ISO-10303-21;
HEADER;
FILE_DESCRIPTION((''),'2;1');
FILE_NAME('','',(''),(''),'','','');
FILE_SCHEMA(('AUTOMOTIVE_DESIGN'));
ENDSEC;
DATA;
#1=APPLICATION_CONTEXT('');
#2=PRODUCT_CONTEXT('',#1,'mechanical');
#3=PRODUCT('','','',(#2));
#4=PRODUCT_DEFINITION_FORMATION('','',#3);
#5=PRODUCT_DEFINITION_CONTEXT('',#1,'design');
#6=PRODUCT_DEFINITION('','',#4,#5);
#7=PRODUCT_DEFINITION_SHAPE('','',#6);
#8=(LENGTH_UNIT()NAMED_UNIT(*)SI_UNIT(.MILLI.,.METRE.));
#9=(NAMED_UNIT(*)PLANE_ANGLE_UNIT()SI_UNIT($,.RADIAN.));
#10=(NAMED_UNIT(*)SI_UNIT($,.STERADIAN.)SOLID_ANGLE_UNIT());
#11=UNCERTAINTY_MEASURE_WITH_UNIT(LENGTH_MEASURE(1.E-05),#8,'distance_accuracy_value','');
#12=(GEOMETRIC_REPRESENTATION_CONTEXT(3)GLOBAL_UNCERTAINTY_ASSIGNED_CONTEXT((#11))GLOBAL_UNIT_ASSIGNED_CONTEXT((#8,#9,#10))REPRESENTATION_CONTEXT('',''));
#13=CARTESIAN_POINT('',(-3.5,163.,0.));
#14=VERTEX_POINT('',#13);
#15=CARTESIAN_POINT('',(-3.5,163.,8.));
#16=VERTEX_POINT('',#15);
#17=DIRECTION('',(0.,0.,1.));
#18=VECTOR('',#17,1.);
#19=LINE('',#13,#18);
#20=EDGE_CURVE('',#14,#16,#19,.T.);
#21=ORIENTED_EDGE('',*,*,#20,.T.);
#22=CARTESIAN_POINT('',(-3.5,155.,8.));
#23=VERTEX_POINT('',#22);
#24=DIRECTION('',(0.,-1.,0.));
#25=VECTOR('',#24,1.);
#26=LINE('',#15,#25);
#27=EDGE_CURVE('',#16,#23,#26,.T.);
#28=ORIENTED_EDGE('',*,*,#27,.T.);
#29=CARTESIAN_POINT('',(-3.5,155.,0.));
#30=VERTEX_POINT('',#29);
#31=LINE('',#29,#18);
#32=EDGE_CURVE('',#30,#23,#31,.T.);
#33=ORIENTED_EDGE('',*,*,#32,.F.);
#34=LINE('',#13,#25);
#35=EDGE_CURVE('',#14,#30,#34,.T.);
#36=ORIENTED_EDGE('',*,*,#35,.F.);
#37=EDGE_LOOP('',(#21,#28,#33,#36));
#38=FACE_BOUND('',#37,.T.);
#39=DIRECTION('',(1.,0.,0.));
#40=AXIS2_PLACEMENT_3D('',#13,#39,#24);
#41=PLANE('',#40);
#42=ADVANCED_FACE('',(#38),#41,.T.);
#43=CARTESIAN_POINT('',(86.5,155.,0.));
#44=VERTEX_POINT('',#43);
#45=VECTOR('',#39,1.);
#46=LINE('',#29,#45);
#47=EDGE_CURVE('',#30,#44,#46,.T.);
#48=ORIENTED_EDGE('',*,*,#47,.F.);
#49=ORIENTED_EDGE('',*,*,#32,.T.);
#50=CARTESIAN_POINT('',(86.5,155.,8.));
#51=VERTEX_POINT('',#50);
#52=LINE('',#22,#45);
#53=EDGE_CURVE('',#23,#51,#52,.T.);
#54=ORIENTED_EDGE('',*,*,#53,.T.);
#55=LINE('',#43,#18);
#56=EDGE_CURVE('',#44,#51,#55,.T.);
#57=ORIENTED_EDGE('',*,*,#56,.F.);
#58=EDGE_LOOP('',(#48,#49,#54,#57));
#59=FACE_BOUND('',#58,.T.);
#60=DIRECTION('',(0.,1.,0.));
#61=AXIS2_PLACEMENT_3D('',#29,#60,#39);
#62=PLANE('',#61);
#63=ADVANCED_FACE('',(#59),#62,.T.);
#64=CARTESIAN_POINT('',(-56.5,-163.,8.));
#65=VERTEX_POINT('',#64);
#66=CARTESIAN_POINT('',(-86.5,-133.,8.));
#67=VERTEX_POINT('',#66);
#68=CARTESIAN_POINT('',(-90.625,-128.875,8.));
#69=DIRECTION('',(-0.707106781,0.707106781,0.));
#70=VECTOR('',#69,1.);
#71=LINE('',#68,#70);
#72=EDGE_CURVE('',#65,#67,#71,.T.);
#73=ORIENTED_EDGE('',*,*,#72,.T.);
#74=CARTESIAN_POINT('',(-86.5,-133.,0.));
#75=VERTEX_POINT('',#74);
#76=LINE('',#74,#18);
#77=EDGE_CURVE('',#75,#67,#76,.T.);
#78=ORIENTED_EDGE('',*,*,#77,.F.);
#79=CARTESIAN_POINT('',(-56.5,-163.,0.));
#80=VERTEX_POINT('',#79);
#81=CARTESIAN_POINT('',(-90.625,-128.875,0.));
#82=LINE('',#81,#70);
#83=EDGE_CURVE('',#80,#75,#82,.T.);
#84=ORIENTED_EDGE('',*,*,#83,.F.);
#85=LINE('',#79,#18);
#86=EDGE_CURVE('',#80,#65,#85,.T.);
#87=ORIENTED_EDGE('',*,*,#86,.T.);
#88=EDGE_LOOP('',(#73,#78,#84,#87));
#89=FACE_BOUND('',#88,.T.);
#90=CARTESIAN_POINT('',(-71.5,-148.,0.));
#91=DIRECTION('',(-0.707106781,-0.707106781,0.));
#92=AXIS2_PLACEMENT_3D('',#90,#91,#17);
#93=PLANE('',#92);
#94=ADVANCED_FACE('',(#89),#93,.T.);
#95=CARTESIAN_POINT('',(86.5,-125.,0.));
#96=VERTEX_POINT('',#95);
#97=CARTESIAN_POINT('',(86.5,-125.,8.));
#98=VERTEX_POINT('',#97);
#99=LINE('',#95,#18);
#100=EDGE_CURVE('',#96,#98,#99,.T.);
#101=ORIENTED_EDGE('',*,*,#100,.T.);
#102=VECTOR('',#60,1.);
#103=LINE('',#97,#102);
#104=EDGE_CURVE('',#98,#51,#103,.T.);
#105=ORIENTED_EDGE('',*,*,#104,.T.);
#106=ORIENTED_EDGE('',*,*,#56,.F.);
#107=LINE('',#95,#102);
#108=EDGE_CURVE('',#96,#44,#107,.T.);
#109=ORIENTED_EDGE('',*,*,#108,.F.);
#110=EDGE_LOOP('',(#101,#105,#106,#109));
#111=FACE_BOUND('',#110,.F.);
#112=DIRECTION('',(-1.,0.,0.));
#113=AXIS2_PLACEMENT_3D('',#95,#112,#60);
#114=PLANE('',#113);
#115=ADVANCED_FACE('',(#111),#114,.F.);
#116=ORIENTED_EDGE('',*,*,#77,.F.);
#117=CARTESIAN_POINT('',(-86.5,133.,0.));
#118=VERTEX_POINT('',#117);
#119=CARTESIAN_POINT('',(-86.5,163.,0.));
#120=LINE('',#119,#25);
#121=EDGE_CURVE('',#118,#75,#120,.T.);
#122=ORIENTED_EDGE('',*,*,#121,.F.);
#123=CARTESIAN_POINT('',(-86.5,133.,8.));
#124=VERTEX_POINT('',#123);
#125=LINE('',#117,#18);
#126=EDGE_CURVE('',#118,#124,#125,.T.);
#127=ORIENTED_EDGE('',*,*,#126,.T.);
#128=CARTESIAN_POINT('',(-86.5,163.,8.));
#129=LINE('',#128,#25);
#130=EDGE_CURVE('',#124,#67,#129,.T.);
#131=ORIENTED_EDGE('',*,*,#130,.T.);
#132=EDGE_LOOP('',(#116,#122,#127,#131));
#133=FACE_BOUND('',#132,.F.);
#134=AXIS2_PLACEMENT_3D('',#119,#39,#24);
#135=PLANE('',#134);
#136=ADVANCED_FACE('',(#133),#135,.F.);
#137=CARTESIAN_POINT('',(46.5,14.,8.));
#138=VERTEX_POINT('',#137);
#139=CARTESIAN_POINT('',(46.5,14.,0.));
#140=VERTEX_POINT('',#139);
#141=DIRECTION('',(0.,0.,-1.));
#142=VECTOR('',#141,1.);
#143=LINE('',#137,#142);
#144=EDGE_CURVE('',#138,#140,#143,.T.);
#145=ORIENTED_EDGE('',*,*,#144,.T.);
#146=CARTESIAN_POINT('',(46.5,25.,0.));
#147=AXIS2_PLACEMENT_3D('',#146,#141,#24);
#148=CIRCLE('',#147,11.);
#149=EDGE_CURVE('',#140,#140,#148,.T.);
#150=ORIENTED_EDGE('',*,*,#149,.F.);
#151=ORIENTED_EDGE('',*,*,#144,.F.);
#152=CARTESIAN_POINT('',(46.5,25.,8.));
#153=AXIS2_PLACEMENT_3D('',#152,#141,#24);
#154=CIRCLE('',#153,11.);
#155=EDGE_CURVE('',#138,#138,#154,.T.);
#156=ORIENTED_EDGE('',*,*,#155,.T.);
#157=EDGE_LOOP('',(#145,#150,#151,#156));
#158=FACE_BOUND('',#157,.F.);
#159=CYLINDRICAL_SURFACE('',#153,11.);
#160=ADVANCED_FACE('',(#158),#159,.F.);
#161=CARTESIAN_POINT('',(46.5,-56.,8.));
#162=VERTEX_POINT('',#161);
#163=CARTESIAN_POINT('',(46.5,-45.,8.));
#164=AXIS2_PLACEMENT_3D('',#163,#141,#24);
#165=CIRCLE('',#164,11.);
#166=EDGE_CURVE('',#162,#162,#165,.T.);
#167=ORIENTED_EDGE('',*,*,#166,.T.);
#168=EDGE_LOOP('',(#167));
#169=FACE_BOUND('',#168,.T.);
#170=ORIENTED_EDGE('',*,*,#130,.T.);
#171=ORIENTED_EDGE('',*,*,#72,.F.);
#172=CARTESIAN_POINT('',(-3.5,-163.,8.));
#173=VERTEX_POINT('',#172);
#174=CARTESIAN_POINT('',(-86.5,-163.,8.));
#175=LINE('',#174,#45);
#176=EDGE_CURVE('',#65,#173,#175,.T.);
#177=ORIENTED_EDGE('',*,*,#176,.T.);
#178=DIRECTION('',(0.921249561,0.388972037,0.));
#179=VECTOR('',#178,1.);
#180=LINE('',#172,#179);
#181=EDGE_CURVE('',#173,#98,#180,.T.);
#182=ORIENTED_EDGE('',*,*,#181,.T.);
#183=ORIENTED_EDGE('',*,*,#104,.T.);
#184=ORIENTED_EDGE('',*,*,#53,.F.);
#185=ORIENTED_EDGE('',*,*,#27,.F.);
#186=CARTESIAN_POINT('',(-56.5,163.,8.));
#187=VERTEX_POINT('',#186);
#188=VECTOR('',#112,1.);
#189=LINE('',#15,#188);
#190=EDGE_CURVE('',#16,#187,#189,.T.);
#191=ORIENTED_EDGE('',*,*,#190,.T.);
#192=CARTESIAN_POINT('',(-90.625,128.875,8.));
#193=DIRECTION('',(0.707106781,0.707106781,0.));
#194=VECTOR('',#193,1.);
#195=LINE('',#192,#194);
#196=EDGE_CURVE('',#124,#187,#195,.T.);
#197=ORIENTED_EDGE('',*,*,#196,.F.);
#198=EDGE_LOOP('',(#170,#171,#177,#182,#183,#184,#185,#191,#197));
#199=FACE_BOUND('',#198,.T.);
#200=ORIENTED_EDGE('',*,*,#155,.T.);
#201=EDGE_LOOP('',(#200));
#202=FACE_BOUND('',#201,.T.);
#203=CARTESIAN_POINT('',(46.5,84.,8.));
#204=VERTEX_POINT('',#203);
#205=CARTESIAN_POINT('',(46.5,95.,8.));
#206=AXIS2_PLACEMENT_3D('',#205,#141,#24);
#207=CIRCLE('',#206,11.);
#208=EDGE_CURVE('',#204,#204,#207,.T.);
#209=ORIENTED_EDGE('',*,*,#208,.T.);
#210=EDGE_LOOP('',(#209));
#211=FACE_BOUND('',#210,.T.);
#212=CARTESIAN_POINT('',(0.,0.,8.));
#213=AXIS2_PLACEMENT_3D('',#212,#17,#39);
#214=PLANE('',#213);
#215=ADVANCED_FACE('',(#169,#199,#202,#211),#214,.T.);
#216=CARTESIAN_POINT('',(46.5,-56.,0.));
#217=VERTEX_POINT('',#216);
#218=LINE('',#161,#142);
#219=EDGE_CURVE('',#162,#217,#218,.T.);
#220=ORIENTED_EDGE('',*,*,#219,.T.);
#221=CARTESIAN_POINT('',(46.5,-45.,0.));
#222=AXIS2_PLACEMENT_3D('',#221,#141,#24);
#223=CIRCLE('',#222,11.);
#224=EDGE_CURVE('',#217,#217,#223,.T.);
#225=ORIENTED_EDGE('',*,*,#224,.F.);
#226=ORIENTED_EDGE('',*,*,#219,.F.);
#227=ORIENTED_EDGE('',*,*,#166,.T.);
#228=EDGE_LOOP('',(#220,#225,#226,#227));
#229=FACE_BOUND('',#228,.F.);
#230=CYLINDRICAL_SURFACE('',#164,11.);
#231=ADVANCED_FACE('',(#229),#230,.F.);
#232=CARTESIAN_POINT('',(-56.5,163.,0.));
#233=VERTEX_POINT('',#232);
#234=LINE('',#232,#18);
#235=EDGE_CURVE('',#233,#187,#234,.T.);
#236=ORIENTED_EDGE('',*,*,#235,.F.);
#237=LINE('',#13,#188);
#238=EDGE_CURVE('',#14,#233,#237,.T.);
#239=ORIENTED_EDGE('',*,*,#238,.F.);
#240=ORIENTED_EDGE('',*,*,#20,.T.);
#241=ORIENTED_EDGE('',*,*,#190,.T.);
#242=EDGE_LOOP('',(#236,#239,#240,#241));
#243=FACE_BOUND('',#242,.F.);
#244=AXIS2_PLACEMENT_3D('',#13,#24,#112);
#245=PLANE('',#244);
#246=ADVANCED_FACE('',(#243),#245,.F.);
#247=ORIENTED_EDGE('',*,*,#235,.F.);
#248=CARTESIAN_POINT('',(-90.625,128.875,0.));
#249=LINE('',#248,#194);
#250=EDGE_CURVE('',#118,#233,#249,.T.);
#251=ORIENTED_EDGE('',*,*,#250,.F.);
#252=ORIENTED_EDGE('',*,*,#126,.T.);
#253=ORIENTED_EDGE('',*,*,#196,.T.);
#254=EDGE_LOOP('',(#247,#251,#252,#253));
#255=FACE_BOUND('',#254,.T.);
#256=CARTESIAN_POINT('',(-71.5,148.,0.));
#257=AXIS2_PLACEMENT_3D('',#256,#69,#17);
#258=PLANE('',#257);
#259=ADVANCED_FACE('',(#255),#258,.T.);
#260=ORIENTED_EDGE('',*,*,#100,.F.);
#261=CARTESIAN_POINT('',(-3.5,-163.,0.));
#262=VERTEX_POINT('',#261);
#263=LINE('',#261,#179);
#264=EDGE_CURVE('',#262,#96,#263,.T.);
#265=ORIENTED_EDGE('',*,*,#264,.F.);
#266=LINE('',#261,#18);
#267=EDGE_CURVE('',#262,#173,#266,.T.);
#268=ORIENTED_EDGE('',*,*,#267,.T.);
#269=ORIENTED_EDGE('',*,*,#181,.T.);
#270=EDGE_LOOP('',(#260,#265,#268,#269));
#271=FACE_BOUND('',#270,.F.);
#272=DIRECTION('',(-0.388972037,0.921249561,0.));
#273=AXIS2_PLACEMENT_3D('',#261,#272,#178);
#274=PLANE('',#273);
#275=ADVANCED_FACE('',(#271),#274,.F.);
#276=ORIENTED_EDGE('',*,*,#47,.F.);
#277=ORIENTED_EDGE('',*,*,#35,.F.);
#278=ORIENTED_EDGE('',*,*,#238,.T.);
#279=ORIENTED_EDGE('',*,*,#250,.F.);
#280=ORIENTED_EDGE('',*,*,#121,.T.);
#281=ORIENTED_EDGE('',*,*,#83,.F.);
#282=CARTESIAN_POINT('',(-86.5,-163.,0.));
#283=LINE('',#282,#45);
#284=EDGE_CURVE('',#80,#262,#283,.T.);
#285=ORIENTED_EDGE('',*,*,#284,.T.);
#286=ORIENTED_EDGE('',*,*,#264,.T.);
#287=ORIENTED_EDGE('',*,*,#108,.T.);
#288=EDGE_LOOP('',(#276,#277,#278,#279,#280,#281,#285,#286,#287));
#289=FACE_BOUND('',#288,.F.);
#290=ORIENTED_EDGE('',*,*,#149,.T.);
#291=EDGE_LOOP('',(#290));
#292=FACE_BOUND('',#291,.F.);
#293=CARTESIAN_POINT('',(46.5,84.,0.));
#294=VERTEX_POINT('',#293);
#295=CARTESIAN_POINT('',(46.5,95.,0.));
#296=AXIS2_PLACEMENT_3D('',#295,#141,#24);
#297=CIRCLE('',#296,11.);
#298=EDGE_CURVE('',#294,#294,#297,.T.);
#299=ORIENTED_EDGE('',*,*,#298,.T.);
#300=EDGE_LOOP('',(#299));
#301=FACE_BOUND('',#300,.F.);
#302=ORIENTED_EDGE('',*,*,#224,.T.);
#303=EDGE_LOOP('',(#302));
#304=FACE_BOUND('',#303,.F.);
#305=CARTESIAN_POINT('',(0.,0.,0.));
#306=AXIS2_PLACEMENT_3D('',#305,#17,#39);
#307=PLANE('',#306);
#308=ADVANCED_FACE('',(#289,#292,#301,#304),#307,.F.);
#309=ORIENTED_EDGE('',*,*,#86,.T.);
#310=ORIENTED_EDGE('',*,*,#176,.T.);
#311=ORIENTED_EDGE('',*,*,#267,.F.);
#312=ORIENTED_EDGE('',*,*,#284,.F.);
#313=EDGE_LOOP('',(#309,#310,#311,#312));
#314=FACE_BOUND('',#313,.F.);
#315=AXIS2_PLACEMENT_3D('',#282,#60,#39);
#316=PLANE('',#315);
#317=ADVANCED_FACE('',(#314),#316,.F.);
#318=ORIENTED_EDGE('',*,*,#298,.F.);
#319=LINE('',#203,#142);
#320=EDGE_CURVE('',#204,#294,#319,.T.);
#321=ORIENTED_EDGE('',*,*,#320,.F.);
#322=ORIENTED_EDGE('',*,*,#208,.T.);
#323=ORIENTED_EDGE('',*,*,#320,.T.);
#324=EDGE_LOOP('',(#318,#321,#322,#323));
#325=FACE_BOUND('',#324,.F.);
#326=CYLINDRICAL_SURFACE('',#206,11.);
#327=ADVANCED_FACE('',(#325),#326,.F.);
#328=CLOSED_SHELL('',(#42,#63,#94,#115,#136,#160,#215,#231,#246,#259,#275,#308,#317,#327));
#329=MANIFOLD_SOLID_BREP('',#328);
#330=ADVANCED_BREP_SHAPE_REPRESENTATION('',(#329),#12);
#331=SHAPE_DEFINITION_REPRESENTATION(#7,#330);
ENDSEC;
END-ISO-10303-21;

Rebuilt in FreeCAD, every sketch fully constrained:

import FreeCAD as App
import Part
import Sketcher
from FreeCAD import Vector
Q = App.Units.Quantity


def edges_at(feature, points):
    """Names of the edges that pass closest to the given points."""
    edges = feature.Shape.Edges
    near = lambda p: min(range(len(edges)), key=lambda i: edges[i].distToShape(Part.Vertex(*p))[0])
    return sorted({f"Edge{near(p) + 1}" for p in points})


def add_polygon(sketch, points):
    """Adds a closed chain of lines whose ends are joined by coincident constraints."""
    first, n = sketch.GeometryCount, len(points)
    for a, b in zip(points, points[1:] + points[:1]):
        sketch.addGeometry(Part.LineSegment(App.Vector(*a, 0), App.Vector(*b, 0)), False)
    for i in range(n):
        sketch.addConstraint(Sketcher.Constraint("Coincident", first + i, 2, first + (i + 1) % n, 1))

doc = App.newDocument("Part")
body = doc.addObject("PartDesign::Body", "Body")

sketch1 = body.newObject("Sketcher::SketchObject", "Sketch")
sketch1.AttachmentSupport = (doc.getObject("XY_Plane"), [""])
sketch1.MapMode = "FlatFace"
add_polygon(sketch1, [(-3.5, 155), (-3.5, 163), (-86.5, 163), (-86.5, -163), (-3.5, -163), (86.5, -125), (86.5, 155)])
sketch1.addConstraint(Sketcher.Constraint("Vertical", 0))
sketch1.addConstraint(Sketcher.Constraint("Horizontal", 1))
sketch1.addConstraint(Sketcher.Constraint("Vertical", 2))
sketch1.addConstraint(Sketcher.Constraint("Horizontal", 3))
sketch1.addConstraint(Sketcher.Constraint("Vertical", 5))
sketch1.addConstraint(Sketcher.Constraint("Horizontal", 6))
sketch1.addConstraint(Sketcher.Constraint("Symmetric", 0, 2, 3, 2, -1))
sketch1.addConstraint(Sketcher.Constraint("DistanceX", 1, 2, 1, 1, Q("83 mm")))
sketch1.addConstraint(Sketcher.Constraint("DistanceY", 2, 2, 2, 1, Q("326 mm")))
sketch1.addConstraint(Sketcher.Constraint("DistanceX", 6, 2, 6, 1, Q("90 mm")))
sketch1.addConstraint(Sketcher.Constraint("DistanceY", 0, 1, 0, 2, Q("8 mm")))
sketch1.addConstraint(Sketcher.Constraint("DistanceY", 5, 1, 5, 2, Q("280 mm")))
sketch1.addConstraint(Sketcher.Constraint("DistanceX", 0, 2, -1, 1, Q("3.5 mm")))
pad1 = body.newObject("PartDesign::Pad", "Pad")
pad1.Profile = sketch1
pad1.Length = 8
doc.recompute()

chamfer = body.newObject("PartDesign::Chamfer", "Chamfer")
chamfer.Base = (pad1, edges_at(pad1, [(-86.5, -163, 4), (-86.5, 163, 4)]))
chamfer.Size = 30

sketch2 = body.newObject("Sketcher::SketchObject", "Sketch001")
sketch2.AttachmentSupport = (doc.getObject("XY_Plane"), [""])
sketch2.MapMode = "FlatFace"
sketch2.AttachmentOffset = App.Placement(Vector(0, 0, 8), App.Rotation())
sketch2.addGeometry(Part.Circle(Vector(46.5, 95, 0), Vector(0, 0, 1), 11), False)
sketch2.addGeometry(Part.Circle(Vector(46.5, 25, 0), Vector(0, 0, 1), 11), False)
sketch2.addGeometry(Part.Circle(Vector(46.5, -45, 0), Vector(0, 0, 1), 11), False)
sketch2.addConstraint(Sketcher.Constraint("Equal", 0, 1))
sketch2.addConstraint(Sketcher.Constraint("Equal", 1, 2))
sketch2.addConstraint(Sketcher.Constraint("Vertical", 0, 3, 1, 3))
sketch2.addConstraint(Sketcher.Constraint("Vertical", 1, 3, 2, 3))
sketch2.addConstraint(Sketcher.Constraint("Diameter", 0, Q("22 mm")))
sketch2.addConstraint(Sketcher.Constraint("DistanceY", -1, 1, 0, 3, Q("95 mm")))
sketch2.addConstraint(Sketcher.Constraint("DistanceY", -1, 1, 1, 3, Q("25 mm")))
sketch2.addConstraint(Sketcher.Constraint("DistanceY", 2, 3, -1, 1, Q("45 mm")))
sketch2.addConstraint(Sketcher.Constraint("DistanceX", -1, 1, 0, 3, Q("46.5 mm")))
doc.recompute()
hole = body.newObject("PartDesign::Hole", "Hole")
hole.Profile = sketch2
hole.ThreadType = "None"
hole.Diameter = 22
hole.DepthType = "ThroughAll"

doc.recompute()
